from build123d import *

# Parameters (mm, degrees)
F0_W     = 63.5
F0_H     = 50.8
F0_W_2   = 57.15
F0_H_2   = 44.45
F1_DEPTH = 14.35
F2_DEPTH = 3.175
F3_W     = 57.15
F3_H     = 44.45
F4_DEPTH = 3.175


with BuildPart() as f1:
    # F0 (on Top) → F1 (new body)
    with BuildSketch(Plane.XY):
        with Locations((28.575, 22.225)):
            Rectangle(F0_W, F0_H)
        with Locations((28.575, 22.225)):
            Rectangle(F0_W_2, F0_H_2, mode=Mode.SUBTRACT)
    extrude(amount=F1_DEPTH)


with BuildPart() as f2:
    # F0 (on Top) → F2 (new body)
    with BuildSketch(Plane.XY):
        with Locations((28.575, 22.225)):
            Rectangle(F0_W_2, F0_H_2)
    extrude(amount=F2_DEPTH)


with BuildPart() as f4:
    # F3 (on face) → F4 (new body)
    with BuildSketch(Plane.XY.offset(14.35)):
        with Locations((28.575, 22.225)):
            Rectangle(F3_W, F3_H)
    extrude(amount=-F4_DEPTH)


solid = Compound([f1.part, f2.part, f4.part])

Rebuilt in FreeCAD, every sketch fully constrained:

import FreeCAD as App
import Part
import Sketcher

V = App.Vector
Q = App.Units.Quantity

doc = App.newDocument("Part")
body = doc.addObject("PartDesign::Body", "Body")

sketch1 = body.newObject("Sketcher::SketchObject", "Sketch")
sketch1.AttachmentSupport = (doc.getObject("XY_Plane"), [""])
sketch1.MapMode = "FlatFace"
sketch1.addGeometry(Part.LineSegment(V(-3, 48, 0), V(-3, -3, 0)), False)
sketch1.addGeometry(Part.LineSegment(V(-3, -3, 0), V(60, -3, 0)), False)
sketch1.addGeometry(Part.LineSegment(V(60, -3, 0), V(60, 48, 0)), False)
sketch1.addGeometry(Part.LineSegment(V(60, 48, 0), V(-3, 48, 0)), False)
sketch1.addGeometry(Part.LineSegment(V(57, 0, 0), V(0, 0, 0)), False)
sketch1.addGeometry(Part.LineSegment(V(0, 0, 0), V(0, 44, 0)), False)
sketch1.addGeometry(Part.LineSegment(V(0, 44, 0), V(57, 44, 0)), False)
sketch1.addGeometry(Part.LineSegment(V(57, 44, 0), V(57, 0, 0)), False)
sketch1.addConstraint(Sketcher.Constraint("Coincident", 0, 2, 1, 1))
sketch1.addConstraint(Sketcher.Constraint("Coincident", 1, 2, 2, 1))
sketch1.addConstraint(Sketcher.Constraint("Coincident", 2, 2, 3, 1))
sketch1.addConstraint(Sketcher.Constraint("Coincident", 3, 2, 0, 1))
sketch1.addConstraint(Sketcher.Constraint("Coincident", 4, 2, 5, 1))
sketch1.addConstraint(Sketcher.Constraint("Coincident", 5, 2, 6, 1))
sketch1.addConstraint(Sketcher.Constraint("Coincident", 6, 2, 7, 1))
sketch1.addConstraint(Sketcher.Constraint("Coincident", 7, 2, 4, 1))
sketch1.addConstraint(Sketcher.Constraint("Vertical", 0))
sketch1.addConstraint(Sketcher.Constraint("Horizontal", 1))
sketch1.addConstraint(Sketcher.Constraint("Vertical", 2))
sketch1.addConstraint(Sketcher.Constraint("Horizontal", 3))
sketch1.addConstraint(Sketcher.Constraint("Horizontal", 4))
sketch1.addConstraint(Sketcher.Constraint("Vertical", 5))
sketch1.addConstraint(Sketcher.Constraint("Horizontal", 6))
sketch1.addConstraint(Sketcher.Constraint("Vertical", 7))
sketch1.addConstraint(Sketcher.Constraint("Coincident", 4, 2, -1, 1))
sketch1.addConstraint(Sketcher.Constraint("DistanceY", 0, 2, 0, 1, Q("2 in")))
sketch1.addConstraint(Sketcher.Constraint("DistanceX", 1, 1, 1, 2, Q("2.5 in")))
sketch1.addConstraint(Sketcher.Constraint("DistanceX", 4, 2, 4, 1, Q("2.25 in")))
sketch1.addConstraint(Sketcher.Constraint("DistanceY", 5, 1, 5, 2, Q("1.75 in")))
sketch1.addConstraint(Sketcher.Constraint("DistanceX", 0, 2, -1, 1, Q("0.125 in")))
sketch1.addConstraint(Sketcher.Constraint("DistanceY", 0, 2, -1, 1, Q("0.125 in")))
pad1 = body.newObject("PartDesign::Pad", "Pad")
pad1.Profile = sketch1
pad1.Length = 14.35
body2 = doc.addObject("PartDesign::Body", "Body001")

sketch2 = body2.newObject("Sketcher::SketchObject", "Sketch001")
sketch2.AttachmentSupport = (doc.getObject("XY_Plane001"), [""])
sketch2.MapMode = "FlatFace"
sketch2.addGeometry(Part.LineSegment(V(0, 44, 0), V(0, 0, 0)), False)
sketch2.addGeometry(Part.LineSegment(V(0, 0, 0), V(57, 0, 0)), False)
sketch2.addGeometry(Part.LineSegment(V(57, 0, 0), V(57, 44, 0)), False)
sketch2.addGeometry(Part.LineSegment(V(57, 44, 0), V(0, 44, 0)), False)
sketch2.addConstraint(Sketcher.Constraint("Coincident", 0, 2, 1, 1))
sketch2.addConstraint(Sketcher.Constraint("Coincident", 1, 2, 2, 1))
sketch2.addConstraint(Sketcher.Constraint("Coincident", 2, 2, 3, 1))
sketch2.addConstraint(Sketcher.Constraint("Coincident", 3, 2, 0, 1))
sketch2.addConstraint(Sketcher.Constraint("Vertical", 0))
sketch2.addConstraint(Sketcher.Constraint("Horizontal", 1))
sketch2.addConstraint(Sketcher.Constraint("Vertical", 2))
sketch2.addConstraint(Sketcher.Constraint("Horizontal", 3))
sketch2.addConstraint(Sketcher.Constraint("Coincident", 0, 2, -1, 1))
sketch2.addConstraint(Sketcher.Constraint("DistanceX", 1, 1, 1, 2, Q("2.25 in")))
sketch2.addConstraint(Sketcher.Constraint("DistanceY", 0, 2, 0, 1, Q("1.75 in")))
pad2 = body2.newObject("PartDesign::Pad", "Pad001")
pad2.Profile = sketch2
pad2.Length = Q("0.125 in")
body3 = doc.addObject("PartDesign::Body", "Body002")

sketch3 = body3.newObject("Sketcher::SketchObject", "Sketch002")
sketch3.AttachmentSupport = (doc.getObject("XY_Plane002"), [""])
sketch3.MapMode = "FlatFace"
sketch3.AttachmentOffset = App.Placement(V(0, 0, 14.35), App.Rotation())
sketch3.addGeometry(Part.LineSegment(V(0, 44, 0), V(0, 0, 0)), False)
sketch3.addGeometry(Part.LineSegment(V(0, 0, 0), V(57, 0, 0)), False)
sketch3.addGeometry(Part.LineSegment(V(57, 0, 0), V(57, 44, 0)), False)
sketch3.addGeometry(Part.LineSegment(V(57, 44, 0), V(0, 44, 0)), False)
sketch3.addConstraint(Sketcher.Constraint("Coincident", 0, 2, 1, 1))
sketch3.addConstraint(Sketcher.Constraint("Coincident", 1, 2, 2, 1))
sketch3.addConstraint(Sketcher.Constraint("Coincident", 2, 2, 3, 1))
sketch3.addConstraint(Sketcher.Constraint("Coincident", 3, 2, 0, 1))
sketch3.addConstraint(Sketcher.Constraint("Vertical", 0))
sketch3.addConstraint(Sketcher.Constraint("Horizontal", 1))
sketch3.addConstraint(Sketcher.Constraint("Vertical", 2))
sketch3.addConstraint(Sketcher.Constraint("Horizontal", 3))
sketch3.addConstraint(Sketcher.Constraint("Coincident", 0, 2, -1, 1))
sketch3.addConstraint(Sketcher.Constraint("DistanceX", 1, 1, 1, 2, Q("2.25 in")))
sketch3.addConstraint(Sketcher.Constraint("DistanceY", 0, 2, 0, 1, Q("1.75 in")))
pad3 = body3.newObject("PartDesign::Pad", "Pad002")
pad3.Profile = sketch3
pad3.Length = Q("0.125 in")
pad3.Reversed = True

doc.recompute()
